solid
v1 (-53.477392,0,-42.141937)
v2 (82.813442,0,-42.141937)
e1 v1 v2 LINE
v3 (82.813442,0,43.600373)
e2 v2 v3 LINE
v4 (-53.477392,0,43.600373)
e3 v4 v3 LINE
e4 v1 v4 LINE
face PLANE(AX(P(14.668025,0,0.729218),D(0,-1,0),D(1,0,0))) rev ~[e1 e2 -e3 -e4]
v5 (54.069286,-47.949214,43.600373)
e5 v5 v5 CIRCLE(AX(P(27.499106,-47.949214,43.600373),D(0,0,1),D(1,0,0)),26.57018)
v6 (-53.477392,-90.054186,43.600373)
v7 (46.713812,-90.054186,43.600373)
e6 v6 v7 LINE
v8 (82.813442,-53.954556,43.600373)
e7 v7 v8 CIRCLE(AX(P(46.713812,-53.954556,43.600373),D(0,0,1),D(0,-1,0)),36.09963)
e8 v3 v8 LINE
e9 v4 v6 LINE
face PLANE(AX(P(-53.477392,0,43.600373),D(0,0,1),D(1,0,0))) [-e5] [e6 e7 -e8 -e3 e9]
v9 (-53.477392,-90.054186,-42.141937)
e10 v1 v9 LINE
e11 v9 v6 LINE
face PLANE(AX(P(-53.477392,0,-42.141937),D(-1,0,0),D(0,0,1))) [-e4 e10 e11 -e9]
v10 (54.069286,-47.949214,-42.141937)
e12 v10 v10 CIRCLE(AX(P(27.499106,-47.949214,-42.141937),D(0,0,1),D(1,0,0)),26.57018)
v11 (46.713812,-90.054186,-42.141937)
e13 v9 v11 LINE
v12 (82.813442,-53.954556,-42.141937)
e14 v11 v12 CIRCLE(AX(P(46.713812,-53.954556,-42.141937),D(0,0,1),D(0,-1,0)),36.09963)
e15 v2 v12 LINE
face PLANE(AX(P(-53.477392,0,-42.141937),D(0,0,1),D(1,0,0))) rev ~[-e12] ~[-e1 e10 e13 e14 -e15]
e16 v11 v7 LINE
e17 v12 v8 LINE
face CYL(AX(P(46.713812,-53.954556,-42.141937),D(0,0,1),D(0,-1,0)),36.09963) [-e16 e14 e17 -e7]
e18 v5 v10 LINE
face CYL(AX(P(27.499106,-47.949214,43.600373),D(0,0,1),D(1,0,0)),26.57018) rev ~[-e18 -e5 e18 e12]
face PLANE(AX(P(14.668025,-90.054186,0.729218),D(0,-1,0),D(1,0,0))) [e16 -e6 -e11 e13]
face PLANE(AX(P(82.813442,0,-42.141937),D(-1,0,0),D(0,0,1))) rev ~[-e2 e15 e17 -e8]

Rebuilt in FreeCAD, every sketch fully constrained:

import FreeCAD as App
import Part
import Sketcher

V = App.Vector


def edges_at(feature, points):
    """Names of the edges that pass closest to the given points."""
    edges = feature.Shape.Edges
    near = lambda p: min(range(len(edges)), key=lambda i: edges[i].distToShape(Part.Vertex(*p))[0])
    return sorted({f"Edge{near(p) + 1}" for p in points})


def add_polygon(sketch, points):
    """Adds a closed chain of lines whose ends are joined by coincident constraints."""
    first, n = sketch.GeometryCount, len(points)
    for a, b in zip(points, points[1:] + points[:1]):
        sketch.addGeometry(Part.LineSegment(App.Vector(*a, 0), App.Vector(*b, 0)), False)
    for i in range(n):
        sketch.addConstraint(Sketcher.Constraint("Coincident", first + i, 2, first + (i + 1) % n, 1))

doc = App.newDocument("Part")
params = doc.addObject("Spreadsheet::Sheet", "Params")
for row, (alias, value) in enumerate([
    ("pad1_length", "90.054186 mm"),
    ("pocket1_length", "175.134316 mm"),
    ("fillet_radius", "36.09963 mm"),
], start=1):
    params.set(f"A{row}", alias)
    params.set(f"B{row}", "=" + value)
    params.setAlias(f"B{row}", alias)

body = doc.addObject("PartDesign::Body", "Body")

sketch1 = doc.addObject("Sketcher::SketchObject", "Sketch")
body.addObject(sketch1)
sketch1.AttachmentSupport = (doc.XZ_Plane, [""])
sketch1.MapMode = "FlatFace"
add_polygon(sketch1, [(-53, 44), (-53, -42), (83, -42), (83, 44)])
sketch1.addConstraint([
    Sketcher.Constraint("Vertical", 0),
    Sketcher.Constraint("Horizontal", 1),
    Sketcher.Constraint("Vertical", 2),
    Sketcher.Constraint("Horizontal", 3),
    Sketcher.Constraint("DistanceY", 0, 2, 0, 1, 85.74231),
    Sketcher.Constraint("DistanceX", 1, 1, 1, 2, 136.290834),
    Sketcher.Constraint("DistanceX", -1, 1, 1, 2, 82.813442),
    Sketcher.Constraint("DistanceY", 0, 2, -1, 1, 42.141937),
])
pad1 = doc.addObject("PartDesign::Pad", "Pad")
body.addObject(pad1)
pad1.Profile = sketch1
pad1.setExpression("Length", "Params.pad1_length")

sketch2 = doc.addObject("Sketcher::SketchObject", "Sketch001")
body.addObject(sketch2)
sketch2.AttachmentSupport = (doc.XY_Plane, [""])
sketch2.MapMode = "FlatFace"
sketch2.AttachmentOffset = App.Placement(V(0, 0, 43.600373), App.Rotation())
sketch2.addGeometry(Part.Circle(V(27, -48, 0), V(0, 0, 1), 27), False)
sketch2.addConstraint([
    Sketcher.Constraint("Diameter", 0, 53.14036),
    Sketcher.Constraint("DistanceX", -1, 1, 0, 3, 27.499106),
    Sketcher.Constraint("DistanceY", 0, 3, -1, 1, 47.949214),
])
pocket1 = doc.addObject("PartDesign::Pocket", "Pocket")
body.addObject(pocket1)
pocket1.Profile = sketch2
pocket1.setExpression("Length", "Params.pocket1_length")
doc.recompute()

fillet = doc.addObject("PartDesign::Fillet", "Fillet")
body.addObject(fillet)
fillet.Base = (pocket1, edges_at(pocket1, [(82.813, -90.054, 0.729)]))
fillet.setExpression("Radius", "Params.fillet_radius")

doc.recompute()
